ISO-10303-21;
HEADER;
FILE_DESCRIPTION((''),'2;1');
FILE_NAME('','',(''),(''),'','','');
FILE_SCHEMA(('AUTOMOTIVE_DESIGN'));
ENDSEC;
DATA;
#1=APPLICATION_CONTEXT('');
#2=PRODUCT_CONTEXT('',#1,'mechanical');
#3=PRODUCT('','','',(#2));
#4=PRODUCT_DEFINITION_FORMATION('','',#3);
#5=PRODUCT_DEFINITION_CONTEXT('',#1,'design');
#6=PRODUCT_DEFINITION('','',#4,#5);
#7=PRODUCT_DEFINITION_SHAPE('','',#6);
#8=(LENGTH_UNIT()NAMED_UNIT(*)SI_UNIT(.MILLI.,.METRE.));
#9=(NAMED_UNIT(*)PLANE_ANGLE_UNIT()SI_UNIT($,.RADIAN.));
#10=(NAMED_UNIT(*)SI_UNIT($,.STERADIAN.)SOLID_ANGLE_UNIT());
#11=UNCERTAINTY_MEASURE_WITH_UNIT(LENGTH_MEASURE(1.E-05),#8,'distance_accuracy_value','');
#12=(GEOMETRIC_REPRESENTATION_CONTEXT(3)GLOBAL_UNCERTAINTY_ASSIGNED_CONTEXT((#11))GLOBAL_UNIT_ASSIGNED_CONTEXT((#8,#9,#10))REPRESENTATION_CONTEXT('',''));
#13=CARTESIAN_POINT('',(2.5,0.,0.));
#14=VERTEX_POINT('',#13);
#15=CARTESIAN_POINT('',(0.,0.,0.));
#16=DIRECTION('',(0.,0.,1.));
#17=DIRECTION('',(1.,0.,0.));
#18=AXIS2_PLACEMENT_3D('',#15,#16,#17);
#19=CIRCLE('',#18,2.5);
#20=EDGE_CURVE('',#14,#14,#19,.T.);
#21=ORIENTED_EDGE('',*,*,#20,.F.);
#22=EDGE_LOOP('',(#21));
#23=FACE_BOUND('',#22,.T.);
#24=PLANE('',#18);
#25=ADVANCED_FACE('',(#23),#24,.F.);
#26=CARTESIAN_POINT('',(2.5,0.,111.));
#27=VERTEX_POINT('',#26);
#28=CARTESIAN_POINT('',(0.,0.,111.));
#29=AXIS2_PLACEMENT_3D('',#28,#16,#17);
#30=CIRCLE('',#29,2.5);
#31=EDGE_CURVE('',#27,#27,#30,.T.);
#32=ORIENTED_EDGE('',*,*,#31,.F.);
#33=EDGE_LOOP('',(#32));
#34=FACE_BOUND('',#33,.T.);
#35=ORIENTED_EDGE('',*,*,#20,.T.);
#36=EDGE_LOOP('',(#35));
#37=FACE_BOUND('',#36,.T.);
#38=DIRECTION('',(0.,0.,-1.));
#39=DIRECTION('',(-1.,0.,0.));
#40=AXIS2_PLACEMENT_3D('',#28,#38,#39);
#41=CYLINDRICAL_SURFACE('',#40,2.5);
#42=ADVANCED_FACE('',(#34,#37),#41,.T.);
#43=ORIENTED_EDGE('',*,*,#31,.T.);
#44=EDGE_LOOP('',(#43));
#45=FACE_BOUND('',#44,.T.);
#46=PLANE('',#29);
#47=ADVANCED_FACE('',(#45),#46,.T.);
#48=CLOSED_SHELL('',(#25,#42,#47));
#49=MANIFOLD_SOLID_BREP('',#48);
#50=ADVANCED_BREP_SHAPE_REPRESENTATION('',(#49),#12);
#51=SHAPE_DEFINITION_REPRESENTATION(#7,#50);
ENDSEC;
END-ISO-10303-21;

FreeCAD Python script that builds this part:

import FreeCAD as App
import Part
import Sketcher
Q = App.Units.Quantity

doc = App.newDocument("Part")
body = doc.addObject("PartDesign::Body", "Body")

# Sketch on XY plane
sketch1 = doc.addObject("Sketcher::SketchObject", "Sketch")
body.addObject(sketch1)
sketch1.AttachmentSupport = (doc.XY_Plane, [""])
sketch1.MapMode = "FlatFace"
sketch1.addGeometry(Part.Circle(App.Vector(0, 0, 0), App.Vector(0, 0, 1), 2.5), False)
sketch1.addConstraint(Sketcher.Constraint("Coincident", 0, 3, -1, 1))
sketch1.addConstraint(Sketcher.Constraint("Diameter", 0, Q("5 mm")))
pad1 = doc.addObject("PartDesign::Pad", "Pad")
body.addObject(pad1)
pad1.Profile = sketch1
pad1.Length = 111

doc.recompute()
